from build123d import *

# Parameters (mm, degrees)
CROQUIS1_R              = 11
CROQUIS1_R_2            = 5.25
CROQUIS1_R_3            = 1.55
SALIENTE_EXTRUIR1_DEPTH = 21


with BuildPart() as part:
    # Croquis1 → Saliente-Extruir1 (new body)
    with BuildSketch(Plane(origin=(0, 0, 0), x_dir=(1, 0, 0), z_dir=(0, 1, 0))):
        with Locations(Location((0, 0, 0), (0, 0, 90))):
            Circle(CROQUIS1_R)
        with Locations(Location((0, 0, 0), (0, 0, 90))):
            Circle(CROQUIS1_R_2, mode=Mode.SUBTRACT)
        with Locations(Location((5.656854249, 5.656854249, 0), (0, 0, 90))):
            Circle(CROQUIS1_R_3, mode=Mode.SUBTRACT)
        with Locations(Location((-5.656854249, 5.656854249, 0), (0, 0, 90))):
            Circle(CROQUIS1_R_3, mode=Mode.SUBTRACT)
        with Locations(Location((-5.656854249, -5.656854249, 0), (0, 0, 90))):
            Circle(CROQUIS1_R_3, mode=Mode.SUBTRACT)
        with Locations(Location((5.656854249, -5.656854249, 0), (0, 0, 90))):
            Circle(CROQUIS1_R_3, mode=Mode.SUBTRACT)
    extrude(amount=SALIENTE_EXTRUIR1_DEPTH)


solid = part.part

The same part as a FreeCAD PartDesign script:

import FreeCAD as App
import Part
import Sketcher
from FreeCAD import Vector

doc = App.newDocument("Part")
params = doc.addObject("Spreadsheet::Sheet", "Params")
for row, (alias, value) in enumerate([
    ("sketch1_diameter", "22 mm"),
    ("sketch1_diameter2", "3.1 mm"),
    ("sketch1_diameter3", "10.5 mm"),
    ("pad1_length", "21 mm"),
], start=1):
    params.set(f"A{row}", alias)
    params.set(f"B{row}", "=" + value)
    params.setAlias(f"B{row}", alias)

body = doc.addObject("PartDesign::Body", "Body")

# Sketch on XZ plane
sketch1 = body.newObject("Sketcher::SketchObject", "Sketch")
sketch1.AttachmentSupport = (doc.getObject("XZ_Plane"), [""])
sketch1.MapMode = "FlatFace"
sketch1.addGeometry(Part.Circle(Vector(0, 0, 0), Vector(0, 0, 1), 11), False)
sketch1.addGeometry(Part.Circle(Vector(5.7, 5.7, 0), Vector(0, 0, 1), 1.6), False)
sketch1.addGeometry(Part.Circle(Vector(5.7, -5.7, 0), Vector(0, 0, 1), 1.6), False)
sketch1.addGeometry(Part.Circle(Vector(-5.7, 5.7, 0), Vector(0, 0, 1), 1.6), False)
sketch1.addGeometry(Part.Circle(Vector(0, 0, 0), Vector(0, 0, 1), 5.2), False)
sketch1.addGeometry(Part.Circle(Vector(-5.7, -5.7, 0), Vector(0, 0, 1), 1.6), False)
sketch1.addConstraint(Sketcher.Constraint("Coincident", 0, 3, -1, 1))
sketch1.addConstraint(Sketcher.Constraint("Coincident", 4, 3, -1, 1))
sketch1.addConstraint(Sketcher.Constraint("Equal", 1, 2))
sketch1.addConstraint(Sketcher.Constraint("Equal", 2, 3))
sketch1.addConstraint(Sketcher.Constraint("Equal", 3, 5))
sketch1.addConstraint(Sketcher.Constraint("Symmetric", 2, 3, 3, 3, -1, 1))
sketch1.addConstraint(Sketcher.Constraint("Symmetric", 1, 3, 5, 3, -1, 1))
sketch1.addConstraint(Sketcher.Constraint("Symmetric", 1, 3, 3, 3, -2))
sketch1.addConstraint(Sketcher.Constraint("Diameter", 0, 22.0))
sketch1.addConstraint(Sketcher.Constraint("Diameter", 1, 3.1))
sketch1.addConstraint(Sketcher.Constraint("Diameter", 4, 10.5))
sketch1.addConstraint(Sketcher.Constraint("DistanceY", 2, 3, 1, 3, 11.313708))
sketch1.addConstraint(Sketcher.Constraint("DistanceX", 3, 3, 1, 3, 11.313708))
sketch1.setExpression("Constraints[8]", "Params.sketch1_diameter")
sketch1.setExpression("Constraints[9]", "Params.sketch1_diameter2")
sketch1.setExpression("Constraints[10]", "Params.sketch1_diameter3")
pad1 = body.newObject("PartDesign::Pad", "Pad")
pad1.Profile = sketch1
pad1.setExpression("Length", "Params.pad1_length")
pad1.Reversed = True

doc.recompute()
